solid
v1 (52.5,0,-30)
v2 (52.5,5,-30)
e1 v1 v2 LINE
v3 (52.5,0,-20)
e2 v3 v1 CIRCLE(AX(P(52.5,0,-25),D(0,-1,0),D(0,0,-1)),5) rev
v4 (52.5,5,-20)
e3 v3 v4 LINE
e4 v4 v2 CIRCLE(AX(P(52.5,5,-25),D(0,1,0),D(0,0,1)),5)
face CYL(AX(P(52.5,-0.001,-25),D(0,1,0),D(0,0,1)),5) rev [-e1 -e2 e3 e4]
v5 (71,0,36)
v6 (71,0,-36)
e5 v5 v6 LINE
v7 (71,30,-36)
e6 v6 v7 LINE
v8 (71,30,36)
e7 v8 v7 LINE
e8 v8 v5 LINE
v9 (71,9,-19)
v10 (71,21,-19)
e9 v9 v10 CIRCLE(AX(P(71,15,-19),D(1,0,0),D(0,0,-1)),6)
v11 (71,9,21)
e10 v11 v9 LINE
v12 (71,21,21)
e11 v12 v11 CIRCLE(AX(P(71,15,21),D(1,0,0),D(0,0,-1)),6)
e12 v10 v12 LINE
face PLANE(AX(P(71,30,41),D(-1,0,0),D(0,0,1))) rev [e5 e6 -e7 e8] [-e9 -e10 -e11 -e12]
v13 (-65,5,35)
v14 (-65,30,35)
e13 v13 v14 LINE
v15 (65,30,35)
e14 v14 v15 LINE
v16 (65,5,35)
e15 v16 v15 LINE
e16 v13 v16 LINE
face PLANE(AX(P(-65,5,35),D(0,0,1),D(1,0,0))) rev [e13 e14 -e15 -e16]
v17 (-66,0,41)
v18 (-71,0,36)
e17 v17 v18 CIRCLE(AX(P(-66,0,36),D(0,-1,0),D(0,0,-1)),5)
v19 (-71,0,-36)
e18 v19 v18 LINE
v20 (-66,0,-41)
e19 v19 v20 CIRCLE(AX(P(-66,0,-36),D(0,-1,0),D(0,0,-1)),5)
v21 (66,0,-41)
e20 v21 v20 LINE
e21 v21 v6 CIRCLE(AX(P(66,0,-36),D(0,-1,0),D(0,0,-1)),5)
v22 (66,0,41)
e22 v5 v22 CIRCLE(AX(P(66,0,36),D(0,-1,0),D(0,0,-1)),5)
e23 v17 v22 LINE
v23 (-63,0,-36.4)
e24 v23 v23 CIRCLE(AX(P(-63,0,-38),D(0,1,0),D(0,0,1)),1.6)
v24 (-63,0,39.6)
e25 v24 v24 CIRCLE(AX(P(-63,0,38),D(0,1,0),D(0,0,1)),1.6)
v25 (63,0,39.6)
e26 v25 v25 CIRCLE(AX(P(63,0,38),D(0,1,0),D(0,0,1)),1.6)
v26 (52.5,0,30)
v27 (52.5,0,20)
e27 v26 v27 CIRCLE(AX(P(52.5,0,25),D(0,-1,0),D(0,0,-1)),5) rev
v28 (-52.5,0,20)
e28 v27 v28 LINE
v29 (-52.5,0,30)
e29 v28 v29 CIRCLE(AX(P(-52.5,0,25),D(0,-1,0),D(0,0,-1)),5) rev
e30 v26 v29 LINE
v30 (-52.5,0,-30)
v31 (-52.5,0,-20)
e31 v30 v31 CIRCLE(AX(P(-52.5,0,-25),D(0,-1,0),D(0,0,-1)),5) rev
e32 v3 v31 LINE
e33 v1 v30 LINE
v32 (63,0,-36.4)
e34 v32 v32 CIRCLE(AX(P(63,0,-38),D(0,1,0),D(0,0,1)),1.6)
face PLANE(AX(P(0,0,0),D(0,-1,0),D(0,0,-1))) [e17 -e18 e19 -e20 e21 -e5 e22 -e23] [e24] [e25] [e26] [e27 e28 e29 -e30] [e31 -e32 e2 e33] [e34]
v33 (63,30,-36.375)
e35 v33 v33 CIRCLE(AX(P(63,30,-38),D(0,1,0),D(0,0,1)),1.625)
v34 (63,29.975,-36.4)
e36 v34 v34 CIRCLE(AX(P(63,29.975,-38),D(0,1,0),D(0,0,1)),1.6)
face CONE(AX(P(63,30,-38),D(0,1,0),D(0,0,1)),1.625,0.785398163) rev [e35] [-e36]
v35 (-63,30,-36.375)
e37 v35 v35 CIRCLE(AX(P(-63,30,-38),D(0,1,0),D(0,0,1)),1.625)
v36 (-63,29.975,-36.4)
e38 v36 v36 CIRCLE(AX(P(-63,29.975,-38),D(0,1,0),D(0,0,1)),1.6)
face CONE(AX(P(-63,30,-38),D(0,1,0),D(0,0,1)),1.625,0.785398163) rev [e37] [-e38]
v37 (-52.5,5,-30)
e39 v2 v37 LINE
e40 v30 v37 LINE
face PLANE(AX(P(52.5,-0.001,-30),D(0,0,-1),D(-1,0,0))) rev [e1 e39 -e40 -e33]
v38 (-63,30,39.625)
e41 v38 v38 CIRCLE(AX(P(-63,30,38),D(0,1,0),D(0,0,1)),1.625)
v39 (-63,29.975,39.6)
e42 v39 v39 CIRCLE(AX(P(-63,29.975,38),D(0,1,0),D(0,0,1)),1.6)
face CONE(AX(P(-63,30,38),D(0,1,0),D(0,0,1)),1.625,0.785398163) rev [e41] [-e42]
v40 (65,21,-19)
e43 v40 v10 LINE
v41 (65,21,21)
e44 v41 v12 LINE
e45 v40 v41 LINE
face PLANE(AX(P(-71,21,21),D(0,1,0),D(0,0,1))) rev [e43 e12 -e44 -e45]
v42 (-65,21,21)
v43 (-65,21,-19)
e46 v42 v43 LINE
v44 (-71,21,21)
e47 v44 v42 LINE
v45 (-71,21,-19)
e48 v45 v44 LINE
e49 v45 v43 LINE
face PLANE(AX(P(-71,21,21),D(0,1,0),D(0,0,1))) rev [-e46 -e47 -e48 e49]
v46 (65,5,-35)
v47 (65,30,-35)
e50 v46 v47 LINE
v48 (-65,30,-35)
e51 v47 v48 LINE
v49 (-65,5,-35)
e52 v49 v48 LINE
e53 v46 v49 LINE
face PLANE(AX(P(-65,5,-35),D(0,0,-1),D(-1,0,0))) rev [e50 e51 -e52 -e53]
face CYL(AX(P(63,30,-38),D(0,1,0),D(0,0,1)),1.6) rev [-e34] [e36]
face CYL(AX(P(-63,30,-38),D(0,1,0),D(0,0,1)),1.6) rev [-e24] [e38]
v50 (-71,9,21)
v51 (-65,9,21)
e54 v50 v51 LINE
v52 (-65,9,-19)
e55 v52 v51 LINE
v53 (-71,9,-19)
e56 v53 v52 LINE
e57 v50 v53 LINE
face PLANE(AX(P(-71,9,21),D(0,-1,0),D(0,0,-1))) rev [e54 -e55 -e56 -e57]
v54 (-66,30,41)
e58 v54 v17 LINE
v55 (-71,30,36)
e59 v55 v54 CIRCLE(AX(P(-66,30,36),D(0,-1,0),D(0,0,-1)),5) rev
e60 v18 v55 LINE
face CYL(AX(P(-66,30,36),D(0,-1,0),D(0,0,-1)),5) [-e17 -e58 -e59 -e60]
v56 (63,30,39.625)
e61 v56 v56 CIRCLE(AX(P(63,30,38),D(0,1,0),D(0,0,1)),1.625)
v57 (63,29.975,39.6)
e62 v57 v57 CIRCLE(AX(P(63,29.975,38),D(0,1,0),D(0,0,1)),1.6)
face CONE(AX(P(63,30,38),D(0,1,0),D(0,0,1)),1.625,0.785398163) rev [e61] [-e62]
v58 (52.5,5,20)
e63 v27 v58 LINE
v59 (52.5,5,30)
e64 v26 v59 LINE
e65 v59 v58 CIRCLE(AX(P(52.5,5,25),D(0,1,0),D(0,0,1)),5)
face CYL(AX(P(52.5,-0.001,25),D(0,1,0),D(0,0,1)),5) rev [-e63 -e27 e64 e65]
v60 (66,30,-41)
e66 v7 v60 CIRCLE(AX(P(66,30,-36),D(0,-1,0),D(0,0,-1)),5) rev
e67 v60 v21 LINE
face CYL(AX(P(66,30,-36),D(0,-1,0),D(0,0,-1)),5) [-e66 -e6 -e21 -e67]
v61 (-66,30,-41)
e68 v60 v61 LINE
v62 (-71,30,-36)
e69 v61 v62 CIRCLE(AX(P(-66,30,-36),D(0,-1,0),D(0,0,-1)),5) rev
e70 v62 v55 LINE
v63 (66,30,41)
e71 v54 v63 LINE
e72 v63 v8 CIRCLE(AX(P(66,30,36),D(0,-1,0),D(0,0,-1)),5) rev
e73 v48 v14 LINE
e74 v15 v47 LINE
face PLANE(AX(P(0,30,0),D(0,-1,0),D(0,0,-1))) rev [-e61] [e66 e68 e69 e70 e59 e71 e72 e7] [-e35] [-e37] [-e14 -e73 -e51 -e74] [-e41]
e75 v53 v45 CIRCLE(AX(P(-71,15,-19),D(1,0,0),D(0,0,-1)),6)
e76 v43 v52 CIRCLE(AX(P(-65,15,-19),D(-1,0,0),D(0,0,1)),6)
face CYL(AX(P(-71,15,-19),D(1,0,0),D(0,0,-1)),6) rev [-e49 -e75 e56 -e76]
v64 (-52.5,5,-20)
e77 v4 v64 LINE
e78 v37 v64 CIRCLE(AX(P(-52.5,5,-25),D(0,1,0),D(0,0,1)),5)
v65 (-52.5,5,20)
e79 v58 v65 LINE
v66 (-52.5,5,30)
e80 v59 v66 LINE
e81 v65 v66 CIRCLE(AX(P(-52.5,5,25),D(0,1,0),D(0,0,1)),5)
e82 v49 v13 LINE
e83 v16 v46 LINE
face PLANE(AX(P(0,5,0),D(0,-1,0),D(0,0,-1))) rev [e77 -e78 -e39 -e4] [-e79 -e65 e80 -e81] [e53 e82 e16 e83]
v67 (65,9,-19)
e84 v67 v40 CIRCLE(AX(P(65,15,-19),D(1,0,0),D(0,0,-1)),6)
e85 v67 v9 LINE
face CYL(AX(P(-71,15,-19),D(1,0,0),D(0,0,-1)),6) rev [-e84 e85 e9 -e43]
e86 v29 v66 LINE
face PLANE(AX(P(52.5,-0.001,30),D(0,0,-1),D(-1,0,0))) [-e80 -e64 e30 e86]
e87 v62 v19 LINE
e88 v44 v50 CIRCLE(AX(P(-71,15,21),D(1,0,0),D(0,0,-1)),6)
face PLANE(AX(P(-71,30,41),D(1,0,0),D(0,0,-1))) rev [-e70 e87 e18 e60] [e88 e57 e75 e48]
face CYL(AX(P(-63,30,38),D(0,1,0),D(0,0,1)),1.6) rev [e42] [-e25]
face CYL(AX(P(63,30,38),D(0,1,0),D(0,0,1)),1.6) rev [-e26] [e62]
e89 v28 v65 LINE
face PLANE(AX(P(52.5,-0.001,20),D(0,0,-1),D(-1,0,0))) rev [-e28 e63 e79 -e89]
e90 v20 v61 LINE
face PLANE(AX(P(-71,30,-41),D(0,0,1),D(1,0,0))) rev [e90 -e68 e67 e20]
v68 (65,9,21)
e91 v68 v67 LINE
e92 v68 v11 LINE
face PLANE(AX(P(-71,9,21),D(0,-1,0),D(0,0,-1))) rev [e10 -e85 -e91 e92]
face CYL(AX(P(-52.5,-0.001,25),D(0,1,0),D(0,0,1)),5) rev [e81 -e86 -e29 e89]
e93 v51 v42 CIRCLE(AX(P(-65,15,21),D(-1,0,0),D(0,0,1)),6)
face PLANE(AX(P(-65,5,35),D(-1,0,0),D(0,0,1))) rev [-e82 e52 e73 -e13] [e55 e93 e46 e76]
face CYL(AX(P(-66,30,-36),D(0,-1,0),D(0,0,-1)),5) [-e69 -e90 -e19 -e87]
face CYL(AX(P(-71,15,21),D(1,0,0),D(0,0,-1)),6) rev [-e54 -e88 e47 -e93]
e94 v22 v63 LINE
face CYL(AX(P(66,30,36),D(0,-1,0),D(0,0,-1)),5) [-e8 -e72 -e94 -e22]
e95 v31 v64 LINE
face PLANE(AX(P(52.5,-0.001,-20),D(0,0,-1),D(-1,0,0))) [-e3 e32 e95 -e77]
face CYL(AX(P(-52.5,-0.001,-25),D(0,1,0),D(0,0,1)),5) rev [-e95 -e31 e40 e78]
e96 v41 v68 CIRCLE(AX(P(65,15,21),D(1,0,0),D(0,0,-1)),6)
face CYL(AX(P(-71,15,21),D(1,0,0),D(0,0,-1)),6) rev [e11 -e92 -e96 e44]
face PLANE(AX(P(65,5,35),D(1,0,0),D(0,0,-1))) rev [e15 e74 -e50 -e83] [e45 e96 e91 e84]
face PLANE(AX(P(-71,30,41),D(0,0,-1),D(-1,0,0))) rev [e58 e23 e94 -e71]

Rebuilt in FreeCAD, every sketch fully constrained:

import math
import FreeCAD as App
import Part
import Sketcher


def edges_at(feature, points):
    """Names of the edges that pass closest to the given points."""
    edges = feature.Shape.Edges
    near = lambda p: min(range(len(edges)), key=lambda i: edges[i].distToShape(Part.Vertex(*p))[0])
    return sorted({f"Edge{near(p) + 1}" for p in points})

doc = App.newDocument("Part")
params = doc.addObject("Spreadsheet::Sheet", "Params")
for row, (alias, value) in enumerate([
    ("sketch1_width", "142 mm"),
    ("sketch1_height", "82 mm"),
    ("pad1_length", "30 mm"),
    ("sketch2_width", "130 mm"),
    ("sketch2_height", "70 mm"),
    ("pocket1_length", "25 mm"),
    ("fillet_radius", "5 mm"),
    ("sketch3_diameter", "3.2 mm"),
    ("hole_diameter", "3.2 mm"),
    ("hole_csink_diameter", "3.25 mm"),
    ("sketch4_radius", "5 mm"),
    ("sketch4_width", "105 mm"),
    ("sketch5_radius", "5 mm"),
    ("sketch5_width", "105 mm"),
    ("sketch6_radius", "6 mm"),
    ("sketch6_height", "40 mm"),
], start=1):
    params.set(f"A{row}", alias)
    params.set(f"B{row}", "=" + value)
    params.setAlias(f"B{row}", alias)

body = doc.addObject("PartDesign::Body", "Body")

sketch1 = body.newObject("Sketcher::SketchObject", "Sketch")
sketch1.AttachmentSupport = (doc.getObject("XZ_Plane"), [""])
sketch1.MapMode = "FlatFace"
sketch1.addGeometry(Part.LineSegment(App.Vector(-71, -41, 0), App.Vector(-71, 41, 0)), False)
sketch1.addGeometry(Part.LineSegment(App.Vector(-71, 41, 0), App.Vector(71, 41, 0)), False)
sketch1.addGeometry(Part.LineSegment(App.Vector(71, 41, 0), App.Vector(71, -41, 0)), False)
sketch1.addGeometry(Part.LineSegment(App.Vector(71, -41, 0), App.Vector(-71, -41, 0)), False)
sketch1.addConstraint(Sketcher.Constraint("Coincident", 0, 2, 1, 1))
sketch1.addConstraint(Sketcher.Constraint("Coincident", 1, 2, 2, 1))
sketch1.addConstraint(Sketcher.Constraint("Coincident", 2, 2, 3, 1))
sketch1.addConstraint(Sketcher.Constraint("Coincident", 3, 2, 0, 1))
sketch1.addConstraint(Sketcher.Constraint("Vertical", 0))
sketch1.addConstraint(Sketcher.Constraint("Horizontal", 1))
sketch1.addConstraint(Sketcher.Constraint("Vertical", 2))
sketch1.addConstraint(Sketcher.Constraint("Horizontal", 3))
sketch1.addConstraint(Sketcher.Constraint("Symmetric", 0, 2, 2, 2, -1, 1))
sketch1.addConstraint(Sketcher.Constraint("DistanceX", 1, 1, 1, 2, 142.0))
sketch1.addConstraint(Sketcher.Constraint("DistanceY", 0, 1, 0, 2, 82.0))
sketch1.setExpression("Constraints[9]", "Params.sketch1_width")
sketch1.setExpression("Constraints[10]", "Params.sketch1_height")
pad1 = body.newObject("PartDesign::Pad", "Pad")
pad1.Profile = sketch1
pad1.setExpression("Length", "Params.pad1_length")
pad1.Reversed = True

sketch2 = body.newObject("Sketcher::SketchObject", "Sketch001")
sketch2.AttachmentSupport = (doc.getObject("XZ_Plane"), [""])
sketch2.MapMode = "FlatFace"
sketch2.AttachmentOffset = App.Placement(App.Vector(0, 0, -30), App.Rotation())
sketch2.addGeometry(Part.LineSegment(App.Vector(-65, -35, 0), App.Vector(-65, 35, 0)), False)
sketch2.addGeometry(Part.LineSegment(App.Vector(-65, 35, 0), App.Vector(65, 35, 0)), False)
sketch2.addGeometry(Part.LineSegment(App.Vector(65, 35, 0), App.Vector(65, -35, 0)), False)
sketch2.addGeometry(Part.LineSegment(App.Vector(65, -35, 0), App.Vector(-65, -35, 0)), False)
sketch2.addConstraint(Sketcher.Constraint("Coincident", 0, 2, 1, 1))
sketch2.addConstraint(Sketcher.Constraint("Coincident", 1, 2, 2, 1))
sketch2.addConstraint(Sketcher.Constraint("Coincident", 2, 2, 3, 1))
sketch2.addConstraint(Sketcher.Constraint("Coincident", 3, 2, 0, 1))
sketch2.addConstraint(Sketcher.Constraint("Vertical", 0))
sketch2.addConstraint(Sketcher.Constraint("Horizontal", 1))
sketch2.addConstraint(Sketcher.Constraint("Vertical", 2))
sketch2.addConstraint(Sketcher.Constraint("Horizontal", 3))
sketch2.addConstraint(Sketcher.Constraint("Symmetric", 0, 2, 2, 2, -1, 1))
sketch2.addConstraint(Sketcher.Constraint("DistanceX", 1, 1, 1, 2, 130.0))
sketch2.addConstraint(Sketcher.Constraint("DistanceY", 0, 1, 0, 2, 70.0))
sketch2.setExpression("Constraints[9]", "Params.sketch2_width")
sketch2.setExpression("Constraints[10]", "Params.sketch2_height")
pocket1 = body.newObject("PartDesign::Pocket", "Pocket")
pocket1.Profile = sketch2
pocket1.setExpression("Length", "Params.pocket1_length")
pocket1.Reversed = True
doc.recompute()

fillet = body.newObject("PartDesign::Fillet", "Fillet")
fillet.Base = (pocket1, edges_at(pocket1, [
    (71, 15, 41),
    (-71, 15, 41),
    (-71, 15, -41),
    (71, 15, -41),
]))
fillet.setExpression("Radius", "Params.fillet_radius")

sketch3 = body.newObject("Sketcher::SketchObject", "Sketch002")
sketch3.AttachmentSupport = (doc.getObject("XZ_Plane"), [""])
sketch3.MapMode = "FlatFace"
sketch3.AttachmentOffset = App.Placement(App.Vector(0, 0, -30), App.Rotation())
sketch3.addGeometry(Part.Circle(App.Vector(63, 38, 0), App.Vector(0, 0, 1), 1.6), False)
sketch3.addGeometry(Part.Circle(App.Vector(63, -38, 0), App.Vector(0, 0, 1), 1.6), False)
sketch3.addGeometry(Part.Circle(App.Vector(-63, -38, 0), App.Vector(0, 0, 1), 1.6), False)
sketch3.addGeometry(Part.Circle(App.Vector(-63, 38, 0), App.Vector(0, 0, 1), 1.6), False)
sketch3.addConstraint(Sketcher.Constraint("Equal", 0, 1))
sketch3.addConstraint(Sketcher.Constraint("Equal", 1, 2))
sketch3.addConstraint(Sketcher.Constraint("Equal", 2, 3))
sketch3.addConstraint(Sketcher.Constraint("Symmetric", 0, 3, 2, 3, -1, 1))
sketch3.addConstraint(Sketcher.Constraint("Symmetric", 1, 3, 3, 3, -1, 1))
sketch3.addConstraint(Sketcher.Constraint("Symmetric", 1, 3, 2, 3, -2))
sketch3.addConstraint(Sketcher.Constraint("Diameter", 0, 3.2))
sketch3.addConstraint(Sketcher.Constraint("DistanceX", -1, 1, 0, 3, 63.0))
sketch3.addConstraint(Sketcher.Constraint("DistanceY", -1, 1, 0, 3, 38.0))
sketch3.setExpression("Constraints[6]", "Params.sketch3_diameter")
doc.recompute()
hole = body.newObject("PartDesign::Hole", "Hole")
hole.Profile = sketch3
hole.ThreadType = "None"
hole.setExpression("Diameter", "Params.hole_diameter")
hole.DepthType = "ThroughAll"
hole.HoleCutType = "Countersink"
hole.setExpression("HoleCutDiameter", "Params.hole_csink_diameter")
hole.HoleCutCountersinkAngle = 90
hole.Reversed = True

sketch4 = body.newObject("Sketcher::SketchObject", "Sketch003")
sketch4.AttachmentSupport = (doc.getObject("XZ_Plane"), [""])
sketch4.MapMode = "FlatFace"
sketch4.AttachmentOffset = App.Placement(App.Vector(0, 0, -5), App.Rotation())
sketch4.addGeometry(Part.LineSegment(App.Vector(-52, 30, 0), App.Vector(52, 30, 0)), False)
sketch4.addGeometry(Part.ArcOfCircle(Part.Circle(App.Vector(52, 25, 0), App.Vector(0, 0, 1), 5), math.radians(-90), math.radians(90)), False)
sketch4.addGeometry(Part.LineSegment(App.Vector(52, 20, 0), App.Vector(-52, 20, 0)), False)
sketch4.addGeometry(Part.ArcOfCircle(Part.Circle(App.Vector(-52, 25, 0), App.Vector(0, 0, 1), 5), math.radians(90), math.radians(270)), False)
sketch4.addConstraint(Sketcher.Constraint("Tangent", 0, 2, 1, 2))
sketch4.addConstraint(Sketcher.Constraint("Tangent", 1, 1, 2, 1))
sketch4.addConstraint(Sketcher.Constraint("Tangent", 2, 2, 3, 2))
sketch4.addConstraint(Sketcher.Constraint("Tangent", 3, 1, 0, 1))
sketch4.addConstraint(Sketcher.Constraint("Horizontal", 0))
sketch4.addConstraint(Sketcher.Constraint("Horizontal", 2))
sketch4.addConstraint(Sketcher.Constraint("Radius", 1, 5.0))
sketch4.addConstraint(Sketcher.Constraint("DistanceX", 0, 1, 0, 2, 105.0))
sketch4.addConstraint(Sketcher.Constraint("DistanceY", -1, 1, 1, 3, 25.0))
sketch4.addConstraint(Sketcher.Constraint("DistanceX", -1, 1, 1, 3, 52.5))
sketch4.setExpression("Constraints[6]", "Params.sketch4_radius")
sketch4.setExpression("Constraints[7]", "Params.sketch4_width")
pocket2 = body.newObject("PartDesign::Pocket", "Pocket001")
pocket2.Profile = sketch4
pocket2.Type = "UpToFirst"
pocket2.Reversed = True

sketch5 = body.newObject("Sketcher::SketchObject", "Sketch004")
sketch5.AttachmentSupport = (doc.getObject("XZ_Plane"), [""])
sketch5.MapMode = "FlatFace"
sketch5.AttachmentOffset = App.Placement(App.Vector(0, 0, -5), App.Rotation())
sketch5.addGeometry(Part.LineSegment(App.Vector(-52, -20, 0), App.Vector(52, -20, 0)), False)
sketch5.addGeometry(Part.ArcOfCircle(Part.Circle(App.Vector(52, -25, 0), App.Vector(0, 0, 1), 5), math.radians(-90), math.radians(90)), False)
sketch5.addGeometry(Part.LineSegment(App.Vector(52, -30, 0), App.Vector(-52, -30, 0)), False)
sketch5.addGeometry(Part.ArcOfCircle(Part.Circle(App.Vector(-52, -25, 0), App.Vector(0, 0, 1), 5), math.radians(90), math.radians(270)), False)
sketch5.addConstraint(Sketcher.Constraint("Tangent", 0, 2, 1, 2))
sketch5.addConstraint(Sketcher.Constraint("Tangent", 1, 1, 2, 1))
sketch5.addConstraint(Sketcher.Constraint("Tangent", 2, 2, 3, 2))
sketch5.addConstraint(Sketcher.Constraint("Tangent", 3, 1, 0, 1))
sketch5.addConstraint(Sketcher.Constraint("Horizontal", 0))
sketch5.addConstraint(Sketcher.Constraint("Horizontal", 2))
sketch5.addConstraint(Sketcher.Constraint("Radius", 1, 5.0))
sketch5.addConstraint(Sketcher.Constraint("DistanceX", 0, 1, 0, 2, 105.0))
sketch5.addConstraint(Sketcher.Constraint("DistanceY", 1, 3, -1, 1, 25.0))
sketch5.addConstraint(Sketcher.Constraint("DistanceX", -1, 1, 1, 3, 52.5))
sketch5.setExpression("Constraints[6]", "Params.sketch5_radius")
sketch5.setExpression("Constraints[7]", "Params.sketch5_width")
pocket3 = body.newObject("PartDesign::Pocket", "Pocket002")
pocket3.Profile = sketch5
pocket3.Type = "UpToFirst"
pocket3.Reversed = True

sketch6 = body.newObject("Sketcher::SketchObject", "Sketch005")
sketch6.AttachmentSupport = (doc.getObject("YZ_Plane"), [""])
sketch6.MapMode = "FlatFace"
sketch6.AttachmentOffset = App.Placement(App.Vector(0, 0, 71), App.Rotation())
sketch6.addGeometry(Part.LineSegment(App.Vector(21, -19, 0), App.Vector(21, 21, 0)), False)
sketch6.addGeometry(Part.ArcOfCircle(Part.Circle(App.Vector(15, 21, 0), App.Vector(0, 0, 1), 6), math.radians(0), math.radians(180)), False)
sketch6.addGeometry(Part.LineSegment(App.Vector(9, 21, 0), App.Vector(9, -19, 0)), False)
sketch6.addGeometry(Part.ArcOfCircle(Part.Circle(App.Vector(15, -19, 0), App.Vector(0, 0, 1), 6), math.radians(180), math.radians(360)), False)
sketch6.addConstraint(Sketcher.Constraint("Tangent", 0, 2, 1, 1))
sketch6.addConstraint(Sketcher.Constraint("Tangent", 1, 2, 2, 1))
sketch6.addConstraint(Sketcher.Constraint("Tangent", 2, 2, 3, 1))
sketch6.addConstraint(Sketcher.Constraint("Tangent", 3, 2, 0, 1))
sketch6.addConstraint(Sketcher.Constraint("Vertical", 0))
sketch6.addConstraint(Sketcher.Constraint("Vertical", 2))
sketch6.addConstraint(Sketcher.Constraint("Radius", 1, 6.0))
sketch6.addConstraint(Sketcher.Constraint("DistanceY", 0, 1, 0, 2, 40.0))
sketch6.addConstraint(Sketcher.Constraint("DistanceX", -1, 1, 1, 3, 15.0))
sketch6.addConstraint(Sketcher.Constraint("DistanceY", -1, 1, 1, 3, 21.0))
sketch6.setExpression("Constraints[6]", "Params.sketch6_radius")
sketch6.setExpression("Constraints[7]", "Params.sketch6_height")
pocket4 = body.newObject("PartDesign::Pocket", "Pocket003")
pocket4.Profile = sketch6
pocket4.Type = "ThroughAll"

doc.recompute()
